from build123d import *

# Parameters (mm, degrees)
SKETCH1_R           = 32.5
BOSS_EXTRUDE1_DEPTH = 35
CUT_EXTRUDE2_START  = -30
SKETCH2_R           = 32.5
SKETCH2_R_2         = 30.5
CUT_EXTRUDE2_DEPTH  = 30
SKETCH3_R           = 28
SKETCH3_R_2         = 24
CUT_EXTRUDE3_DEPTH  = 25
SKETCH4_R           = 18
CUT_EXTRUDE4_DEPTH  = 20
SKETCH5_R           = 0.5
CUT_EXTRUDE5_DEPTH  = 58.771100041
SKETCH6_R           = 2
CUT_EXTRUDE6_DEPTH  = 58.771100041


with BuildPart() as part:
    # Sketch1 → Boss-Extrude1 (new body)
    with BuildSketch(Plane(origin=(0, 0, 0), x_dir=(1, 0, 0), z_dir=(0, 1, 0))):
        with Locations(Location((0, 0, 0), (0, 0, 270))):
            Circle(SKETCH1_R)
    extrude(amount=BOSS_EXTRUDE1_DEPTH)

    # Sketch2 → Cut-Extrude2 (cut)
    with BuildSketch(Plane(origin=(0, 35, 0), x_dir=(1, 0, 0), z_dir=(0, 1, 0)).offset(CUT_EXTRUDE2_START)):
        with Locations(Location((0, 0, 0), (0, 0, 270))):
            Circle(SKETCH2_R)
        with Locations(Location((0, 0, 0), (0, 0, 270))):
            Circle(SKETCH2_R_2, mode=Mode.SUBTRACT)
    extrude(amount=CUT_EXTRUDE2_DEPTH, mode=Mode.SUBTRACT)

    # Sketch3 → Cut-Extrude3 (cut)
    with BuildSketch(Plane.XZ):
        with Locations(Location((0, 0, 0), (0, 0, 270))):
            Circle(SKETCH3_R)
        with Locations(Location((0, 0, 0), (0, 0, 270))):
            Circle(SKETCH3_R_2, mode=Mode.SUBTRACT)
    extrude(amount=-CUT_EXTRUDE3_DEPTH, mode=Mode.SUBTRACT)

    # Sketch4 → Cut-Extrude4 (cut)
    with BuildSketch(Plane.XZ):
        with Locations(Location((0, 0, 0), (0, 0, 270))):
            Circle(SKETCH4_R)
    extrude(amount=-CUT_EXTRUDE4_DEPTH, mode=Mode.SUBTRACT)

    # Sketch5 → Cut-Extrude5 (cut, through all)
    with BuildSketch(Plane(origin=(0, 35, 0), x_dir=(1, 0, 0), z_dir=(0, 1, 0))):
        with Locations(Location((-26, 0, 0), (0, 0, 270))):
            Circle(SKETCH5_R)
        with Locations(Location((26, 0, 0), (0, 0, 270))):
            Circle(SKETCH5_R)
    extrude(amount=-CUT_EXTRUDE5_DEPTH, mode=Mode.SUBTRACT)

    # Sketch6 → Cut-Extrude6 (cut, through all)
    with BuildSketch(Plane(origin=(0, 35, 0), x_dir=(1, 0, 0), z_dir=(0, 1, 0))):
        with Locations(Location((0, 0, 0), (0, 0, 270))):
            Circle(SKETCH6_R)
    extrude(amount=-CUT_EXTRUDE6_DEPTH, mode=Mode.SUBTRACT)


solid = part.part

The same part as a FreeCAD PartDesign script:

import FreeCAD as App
import Part
import Sketcher
from FreeCAD import Vector
Q = App.Units.Quantity

doc = App.newDocument("Part")
params = doc.addObject("Spreadsheet::Sheet", "Params")
for row, (alias, value) in enumerate([
    ("sketch1_diameter", "65 mm"),
    ("pad1_length", "35 mm"),
    ("sketch2_diameter", "65 mm"),
    ("sketch2_diameter2", "61 mm"),
    ("pocket1_length", "30 mm"),
    ("sketch3_diameter", "56 mm"),
    ("sketch3_diameter2", "48 mm"),
    ("pocket2_length", "25 mm"),
    ("sketch4_diameter", "36 mm"),
    ("pocket3_length", "20 mm"),
    ("sketch5_diameter", "1 mm"),
    ("sketch6_diameter", "4 mm"),
], start=1):
    params.set(f"A{row}", alias)
    params.set(f"B{row}", "=" + value)
    params.setAlias(f"B{row}", alias)

body = doc.addObject("PartDesign::Body", "Body")

# Sketch on XZ plane
sketch1 = body.newObject("Sketcher::SketchObject", "Sketch")
sketch1.AttachmentSupport = (doc.getObject("XZ_Plane"), [""])
sketch1.MapMode = "FlatFace"
sketch1.addGeometry(Part.Circle(Vector(0, 0, 0), Vector(0, 0, 1), 32), False)
sketch1.addConstraint([
    Sketcher.Constraint("Coincident", 0, 3, -1, 1),
    Sketcher.Constraint("Diameter", 0, Q("65 mm")),
])
sketch1.setExpression("Constraints[1]", "Params.sketch1_diameter")
pad1 = body.newObject("PartDesign::Pad", "Pad")
pad1.Profile = sketch1
pad1.setExpression("Length", "Params.pad1_length")
pad1.Reversed = True

# Sketch on XZ plane
sketch2 = body.newObject("Sketcher::SketchObject", "Sketch001")
sketch2.AttachmentSupport = (doc.getObject("XZ_Plane"), [""])
sketch2.MapMode = "FlatFace"
sketch2.AttachmentOffset = App.Placement(Vector(0, 0, -5), App.Rotation())
sketch2.addGeometry([
    Part.Circle(Vector(0, 0, 0), Vector(0, 0, 1), 32),
    Part.Circle(Vector(0, 0, 0), Vector(0, 0, 1), 30),
], False)
sketch2.addConstraint([
    Sketcher.Constraint("Coincident", 0, 3, -1, 1),
    Sketcher.Constraint("Coincident", 1, 3, -1, 1),
    Sketcher.Constraint("Diameter", 0, Q("65 mm")),
    Sketcher.Constraint("Diameter", 1, Q("61 mm")),
])
sketch2.setExpression("Constraints[2]", "Params.sketch2_diameter")
sketch2.setExpression("Constraints[3]", "Params.sketch2_diameter2")
pocket1 = body.newObject("PartDesign::Pocket", "Pocket")
pocket1.Profile = sketch2
pocket1.setExpression("Length", "Params.pocket1_length")

# Sketch on XZ plane
sketch3 = body.newObject("Sketcher::SketchObject", "Sketch002")
sketch3.AttachmentSupport = (doc.getObject("XZ_Plane"), [""])
sketch3.MapMode = "FlatFace"
sketch3.addGeometry([
    Part.Circle(Vector(0, 0, 0), Vector(0, 0, 1), 28),
    Part.Circle(Vector(0, 0, 0), Vector(0, 0, 1), 24),
], False)
sketch3.addConstraint([
    Sketcher.Constraint("Coincident", 0, 3, -1, 1),
    Sketcher.Constraint("Coincident", 1, 3, -1, 1),
    Sketcher.Constraint("Diameter", 0, Q("56 mm")),
    Sketcher.Constraint("Diameter", 1, Q("48 mm")),
])
sketch3.setExpression("Constraints[2]", "Params.sketch3_diameter")
sketch3.setExpression("Constraints[3]", "Params.sketch3_diameter2")
pocket2 = body.newObject("PartDesign::Pocket", "Pocket001")
pocket2.Profile = sketch3
pocket2.setExpression("Length", "Params.pocket2_length")

# Sketch on XZ plane
sketch4 = body.newObject("Sketcher::SketchObject", "Sketch003")
sketch4.AttachmentSupport = (doc.getObject("XZ_Plane"), [""])
sketch4.MapMode = "FlatFace"
sketch4.addGeometry(Part.Circle(Vector(0, 0, 0), Vector(0, 0, 1), 18), False)
sketch4.addConstraint([
    Sketcher.Constraint("Coincident", 0, 3, -1, 1),
    Sketcher.Constraint("Diameter", 0, Q("36 mm")),
])
sketch4.setExpression("Constraints[1]", "Params.sketch4_diameter")
pocket3 = body.newObject("PartDesign::Pocket", "Pocket002")
pocket3.Profile = sketch4
pocket3.setExpression("Length", "Params.pocket3_length")

# Sketch on XZ plane
sketch5 = body.newObject("Sketcher::SketchObject", "Sketch004")
sketch5.AttachmentSupport = (doc.getObject("XZ_Plane"), [""])
sketch5.MapMode = "FlatFace"
sketch5.AttachmentOffset = App.Placement(Vector(0, 0, -35), App.Rotation())
sketch5.addGeometry([
    Part.Circle(Vector(-26, 0, 0), Vector(0, 0, 1), 0.5),
    Part.Circle(Vector(26, 0, 0), Vector(0, 0, 1), 0.5),
], False)
sketch5.addConstraint([
    Sketcher.Constraint("Equal", 0, 1),
    Sketcher.Constraint("Symmetric", 0, 3, 1, 3, -1, 1),
    Sketcher.Constraint("PointOnObject", 0, 3, -1),
    Sketcher.Constraint("Diameter", 0, Q("1 mm")),
    Sketcher.Constraint("DistanceX", 0, 3, -1, 1, Q("26 mm")),
])
sketch5.setExpression("Constraints[3]", "Params.sketch5_diameter")
pocket4 = body.newObject("PartDesign::Pocket", "Pocket003")
pocket4.Profile = sketch5
pocket4.Type = "ThroughAll"
pocket4.Reversed = True

# Sketch on XZ plane
sketch6 = body.newObject("Sketcher::SketchObject", "Sketch005")
sketch6.AttachmentSupport = (doc.getObject("XZ_Plane"), [""])
sketch6.MapMode = "FlatFace"
sketch6.AttachmentOffset = App.Placement(Vector(0, 0, -35), App.Rotation())
sketch6.addGeometry(Part.Circle(Vector(0, 0, 0), Vector(0, 0, 1), 2), False)
sketch6.addConstraint([
    Sketcher.Constraint("Coincident", 0, 3, -1, 1),
    Sketcher.Constraint("Diameter", 0, Q("4 mm")),
])
sketch6.setExpression("Constraints[1]", "Params.sketch6_diameter")
pocket5 = body.newObject("PartDesign::Pocket", "Pocket004")
pocket5.Profile = sketch6
pocket5.Type = "ThroughAll"
pocket5.Reversed = True

doc.recompute()
